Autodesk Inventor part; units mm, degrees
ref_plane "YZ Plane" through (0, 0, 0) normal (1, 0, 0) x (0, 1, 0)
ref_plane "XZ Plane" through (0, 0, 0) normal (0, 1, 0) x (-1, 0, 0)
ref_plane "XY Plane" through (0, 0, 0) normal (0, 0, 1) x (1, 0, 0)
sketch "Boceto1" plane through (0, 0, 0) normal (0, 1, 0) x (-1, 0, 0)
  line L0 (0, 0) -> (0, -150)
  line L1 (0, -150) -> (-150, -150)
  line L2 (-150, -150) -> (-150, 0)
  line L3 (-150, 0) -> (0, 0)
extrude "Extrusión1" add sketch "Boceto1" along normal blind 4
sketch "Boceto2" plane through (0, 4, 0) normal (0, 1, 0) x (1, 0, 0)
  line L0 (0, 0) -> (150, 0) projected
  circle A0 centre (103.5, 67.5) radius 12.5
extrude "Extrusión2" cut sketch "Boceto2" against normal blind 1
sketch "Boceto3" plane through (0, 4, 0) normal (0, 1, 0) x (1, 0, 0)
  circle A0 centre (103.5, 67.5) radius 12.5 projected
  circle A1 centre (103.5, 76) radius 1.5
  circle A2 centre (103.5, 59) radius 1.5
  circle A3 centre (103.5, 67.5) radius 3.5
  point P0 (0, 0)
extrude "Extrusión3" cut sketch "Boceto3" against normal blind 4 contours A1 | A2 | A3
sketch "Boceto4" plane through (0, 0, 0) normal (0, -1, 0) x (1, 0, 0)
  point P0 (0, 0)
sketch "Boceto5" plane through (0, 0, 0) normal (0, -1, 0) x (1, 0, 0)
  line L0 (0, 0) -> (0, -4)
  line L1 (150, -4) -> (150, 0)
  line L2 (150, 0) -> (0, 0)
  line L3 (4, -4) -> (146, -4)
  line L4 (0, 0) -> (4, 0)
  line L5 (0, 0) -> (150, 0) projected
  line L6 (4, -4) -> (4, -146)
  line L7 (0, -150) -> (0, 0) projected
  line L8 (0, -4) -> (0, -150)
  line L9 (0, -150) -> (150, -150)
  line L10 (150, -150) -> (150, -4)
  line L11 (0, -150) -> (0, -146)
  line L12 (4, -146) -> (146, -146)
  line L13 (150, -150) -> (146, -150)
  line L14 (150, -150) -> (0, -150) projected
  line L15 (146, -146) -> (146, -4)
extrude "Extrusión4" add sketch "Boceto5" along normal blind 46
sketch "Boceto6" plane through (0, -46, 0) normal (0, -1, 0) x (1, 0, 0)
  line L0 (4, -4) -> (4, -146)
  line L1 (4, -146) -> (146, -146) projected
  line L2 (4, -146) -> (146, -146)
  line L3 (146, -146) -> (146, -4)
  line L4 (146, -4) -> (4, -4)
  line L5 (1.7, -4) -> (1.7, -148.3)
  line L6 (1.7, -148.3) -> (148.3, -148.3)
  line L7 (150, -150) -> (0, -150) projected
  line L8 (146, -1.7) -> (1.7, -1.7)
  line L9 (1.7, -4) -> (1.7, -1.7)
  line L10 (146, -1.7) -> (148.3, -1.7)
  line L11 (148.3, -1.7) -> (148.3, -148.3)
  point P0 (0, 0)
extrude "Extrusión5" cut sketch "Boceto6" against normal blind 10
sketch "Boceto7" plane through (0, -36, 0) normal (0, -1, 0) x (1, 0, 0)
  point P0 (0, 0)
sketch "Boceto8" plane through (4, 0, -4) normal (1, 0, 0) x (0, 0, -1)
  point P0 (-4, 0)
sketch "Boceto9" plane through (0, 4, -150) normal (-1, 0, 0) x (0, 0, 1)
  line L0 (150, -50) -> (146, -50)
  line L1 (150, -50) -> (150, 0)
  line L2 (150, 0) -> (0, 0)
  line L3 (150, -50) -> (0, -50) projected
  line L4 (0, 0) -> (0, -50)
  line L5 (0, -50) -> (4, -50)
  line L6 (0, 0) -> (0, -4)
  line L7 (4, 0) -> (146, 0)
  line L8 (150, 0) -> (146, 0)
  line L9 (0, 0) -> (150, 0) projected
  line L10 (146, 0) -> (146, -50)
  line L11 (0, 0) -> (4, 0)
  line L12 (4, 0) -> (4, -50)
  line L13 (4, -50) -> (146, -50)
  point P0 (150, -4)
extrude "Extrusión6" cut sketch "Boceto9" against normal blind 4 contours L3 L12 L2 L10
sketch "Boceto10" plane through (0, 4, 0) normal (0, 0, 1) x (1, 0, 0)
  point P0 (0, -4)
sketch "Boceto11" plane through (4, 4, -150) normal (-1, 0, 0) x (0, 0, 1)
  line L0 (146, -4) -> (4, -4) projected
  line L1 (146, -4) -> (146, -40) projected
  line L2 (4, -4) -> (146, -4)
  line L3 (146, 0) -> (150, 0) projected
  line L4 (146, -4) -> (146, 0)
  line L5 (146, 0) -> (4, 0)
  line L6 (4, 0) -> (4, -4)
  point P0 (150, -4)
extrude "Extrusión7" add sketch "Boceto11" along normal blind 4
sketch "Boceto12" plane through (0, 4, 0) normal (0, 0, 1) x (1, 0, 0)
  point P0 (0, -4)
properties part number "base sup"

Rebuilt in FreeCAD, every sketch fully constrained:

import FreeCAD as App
import Part
import Sketcher

V = App.Vector

doc = App.newDocument("Part")
body = doc.addObject("PartDesign::Body", "Body")

sketch1 = body.newObject("Sketcher::SketchObject", "Sketch")
sketch1.AttachmentSupport = (doc.getObject("XZ_Plane"), [""])
sketch1.MapMode = "FlatFace"
sketch1.addGeometry([
    Part.LineSegment(V(0, -150, 0), V(0, 0, 0)),
    Part.LineSegment(V(0, 0, 0), V(150, 0, 0)),
    Part.LineSegment(V(150, 0, 0), V(150, -150, 0)),
    Part.LineSegment(V(150, -150, 0), V(0, -150, 0)),
], False)
sketch1.addConstraint([
    Sketcher.Constraint("Coincident", 0, 2, 1, 1),
    Sketcher.Constraint("Coincident", 1, 2, 2, 1),
    Sketcher.Constraint("Coincident", 2, 2, 3, 1),
    Sketcher.Constraint("Coincident", 3, 2, 0, 1),
    Sketcher.Constraint("Vertical", 0),
    Sketcher.Constraint("Horizontal", 1),
    Sketcher.Constraint("Vertical", 2),
    Sketcher.Constraint("Horizontal", 3),
    Sketcher.Constraint("Coincident", 0, 2, -1, 1),
    Sketcher.Constraint("Equal", 3, 0),
    Sketcher.Constraint("DistanceX", 1, 1, 1, 2, 150.0),
])
pad1 = body.newObject("PartDesign::Pad", "Pad")
pad1.Profile = sketch1
pad1.Length = 4
pad1.Reversed = True

sketch2 = body.newObject("Sketcher::SketchObject", "Sketch001")
sketch2.AttachmentSupport = (doc.getObject("XZ_Plane"), [""])
sketch2.MapMode = "FlatFace"
sketch2.AttachmentOffset = App.Placement(V(0, 0, -4), App.Rotation())
sketch2.addGeometry(Part.Circle(V(104, -68, 0), V(0, 0, 1), 12), False)
sketch2.addConstraint([
    Sketcher.Constraint("Diameter", 0, 25.0),
    Sketcher.Constraint("DistanceX", -1, 1, 0, 3, 103.5),
    Sketcher.Constraint("DistanceY", 0, 3, -1, 1, 67.5),
])
pocket1 = body.newObject("PartDesign::Pocket", "Pocket")
pocket1.Profile = sketch2
pocket1.Length = 1
pocket1.Reversed = True

sketch3 = body.newObject("Sketcher::SketchObject", "Sketch002")
sketch3.AttachmentSupport = (doc.getObject("XZ_Plane"), [""])
sketch3.MapMode = "FlatFace"
sketch3.AttachmentOffset = App.Placement(V(0, 0, -4), App.Rotation())
sketch3.addGeometry([
    Part.Circle(V(103.5, -76, 0), V(0, 0, 1), 1.5),
    Part.Circle(V(103.5, -59, 0), V(0, 0, 1), 1.5),
    Part.Circle(V(103.5, -67.5, 0), V(0, 0, 1), 3.5),
], False)
sketch3.addConstraint([
    Sketcher.Constraint("Equal", 0, 1),
    Sketcher.Constraint("Vertical", 0, 3, 1, 3),
    Sketcher.Constraint("Vertical", 1, 3, 2, 3),
    Sketcher.Constraint("Diameter", 0, 3.0),
    Sketcher.Constraint("Diameter", 2, 7.0),
    Sketcher.Constraint("DistanceY", 0, 3, -1, 1, 76.0),
    Sketcher.Constraint("DistanceY", 1, 3, -1, 1, 59.0),
    Sketcher.Constraint("DistanceX", -1, 1, 0, 3, 103.5),
    Sketcher.Constraint("DistanceY", 2, 3, -1, 1, 67.5),
])
pocket2 = body.newObject("PartDesign::Pocket", "Pocket001")
pocket2.Profile = sketch3
pocket2.Length = 4
pocket2.Reversed = True

sketch4 = body.newObject("Sketcher::SketchObject", "Sketch003")
sketch4.AttachmentSupport = (doc.getObject("XZ_Plane"), [""])
sketch4.MapMode = "FlatFace"
sketch4.addGeometry([
    Part.LineSegment(V(150, 0, 0), V(0, 0, 0)),
    Part.LineSegment(V(0, 0, 0), V(0, -150, 0)),
    Part.LineSegment(V(0, -150, 0), V(150, -150, 0)),
    Part.LineSegment(V(150, -150, 0), V(150, 0, 0)),
    Part.LineSegment(V(4, -146, 0), V(4, -4, 0)),
    Part.LineSegment(V(4, -4, 0), V(146, -4, 0)),
    Part.LineSegment(V(146, -4, 0), V(146, -146, 0)),
    Part.LineSegment(V(146, -146, 0), V(4, -146, 0)),
], False)
sketch4.addConstraint([
    Sketcher.Constraint("Coincident", 0, 2, 1, 1),
    Sketcher.Constraint("Coincident", 1, 2, 2, 1),
    Sketcher.Constraint("Coincident", 2, 2, 3, 1),
    Sketcher.Constraint("Coincident", 3, 2, 0, 1),
    Sketcher.Constraint("Coincident", 4, 2, 5, 1),
    Sketcher.Constraint("Coincident", 5, 2, 6, 1),
    Sketcher.Constraint("Coincident", 6, 2, 7, 1),
    Sketcher.Constraint("Coincident", 7, 2, 4, 1),
    Sketcher.Constraint("Horizontal", 0),
    Sketcher.Constraint("Vertical", 1),
    Sketcher.Constraint("Horizontal", 2),
    Sketcher.Constraint("Vertical", 3),
    Sketcher.Constraint("Vertical", 4),
    Sketcher.Constraint("Horizontal", 5),
    Sketcher.Constraint("Vertical", 6),
    Sketcher.Constraint("Horizontal", 7),
    Sketcher.Constraint("Coincident", 0, 2, -1, 1),
    Sketcher.Constraint("Equal", 2, 1),
    Sketcher.Constraint("Equal", 7, 4),
    Sketcher.Constraint("DistanceX", 0, 2, 0, 1, 150.0),
    Sketcher.Constraint("DistanceX", 5, 1, 5, 2, 142.0),
    Sketcher.Constraint("DistanceX", -1, 1, 4, 2, 4.0),
    Sketcher.Constraint("DistanceY", 4, 2, -1, 1, 4.0),
])
pad2 = body.newObject("PartDesign::Pad", "Pad001")
pad2.Profile = sketch4
pad2.Length = 46

sketch5 = body.newObject("Sketcher::SketchObject", "Sketch004")
sketch5.AttachmentSupport = (doc.getObject("XZ_Plane"), [""])
sketch5.MapMode = "FlatFace"
sketch5.AttachmentOffset = App.Placement(V(0, 0, 46), App.Rotation())
sketch5.addGeometry([
    Part.LineSegment(V(2, -2, 0), V(2, -148, 0)),
    Part.LineSegment(V(2, -148, 0), V(148, -148, 0)),
    Part.LineSegment(V(148, -148, 0), V(148, -2, 0)),
    Part.LineSegment(V(148, -2, 0), V(2, -2, 0)),
    Part.LineSegment(V(4, -146, 0), V(4, -4, 0)),
    Part.LineSegment(V(4, -4, 0), V(146, -4, 0)),
    Part.LineSegment(V(146, -4, 0), V(146, -146, 0)),
    Part.LineSegment(V(146, -146, 0), V(4, -146, 0)),
], False)
sketch5.addConstraint([
    Sketcher.Constraint("Coincident", 0, 2, 1, 1),
    Sketcher.Constraint("Coincident", 1, 2, 2, 1),
    Sketcher.Constraint("Coincident", 2, 2, 3, 1),
    Sketcher.Constraint("Coincident", 3, 2, 0, 1),
    Sketcher.Constraint("Coincident", 4, 2, 5, 1),
    Sketcher.Constraint("Coincident", 5, 2, 6, 1),
    Sketcher.Constraint("Coincident", 6, 2, 7, 1),
    Sketcher.Constraint("Coincident", 7, 2, 4, 1),
    Sketcher.Constraint("Vertical", 0),
    Sketcher.Constraint("Horizontal", 1),
    Sketcher.Constraint("Vertical", 2),
    Sketcher.Constraint("Horizontal", 3),
    Sketcher.Constraint("Vertical", 4),
    Sketcher.Constraint("Horizontal", 5),
    Sketcher.Constraint("Vertical", 6),
    Sketcher.Constraint("Horizontal", 7),
    Sketcher.Constraint("Equal", 3, 0),
    Sketcher.Constraint("Equal", 7, 4),
    Sketcher.Constraint("DistanceX", 5, 1, 5, 2, 142.0),
    Sketcher.Constraint("DistanceX", 1, 1, 1, 2, 146.6),
    Sketcher.Constraint("DistanceX", -1, 1, 4, 2, 4.0),
    Sketcher.Constraint("DistanceY", 4, 2, -1, 1, 4.0),
    Sketcher.Constraint("DistanceX", -1, 1, 0, 2, 1.7),
    Sketcher.Constraint("DistanceY", 0, 2, -1, 1, 148.3),
])
pocket3 = body.newObject("PartDesign::Pocket", "Pocket002")
pocket3.Profile = sketch5
pocket3.Length = 10

sketch6 = body.newObject("Sketcher::SketchObject", "Sketch005")
sketch6.AttachmentSupport = (doc.getObject("YZ_Plane"), [""])
sketch6.MapMode = "FlatFace"
sketch6.addGeometry([
    Part.LineSegment(V(-46, -146, 0), V(-46, -4, 0)),
    Part.LineSegment(V(-46, -4, 0), V(4, -4, 0)),
    Part.LineSegment(V(4, -4, 0), V(4, -146, 0)),
    Part.LineSegment(V(4, -146, 0), V(-46, -146, 0)),
], False)
sketch6.addConstraint([
    Sketcher.Constraint("Coincident", 0, 2, 1, 1),
    Sketcher.Constraint("Coincident", 1, 2, 2, 1),
    Sketcher.Constraint("Coincident", 2, 2, 3, 1),
    Sketcher.Constraint("Coincident", 3, 2, 0, 1),
    Sketcher.Constraint("Vertical", 0),
    Sketcher.Constraint("Horizontal", 1),
    Sketcher.Constraint("Vertical", 2),
    Sketcher.Constraint("Horizontal", 3),
    Sketcher.Constraint("DistanceX", 1, 1, 1, 2, 50.0),
    Sketcher.Constraint("DistanceY", 0, 1, 0, 2, 142.0),
    Sketcher.Constraint("DistanceX", 0, 2, -1, 1, 46.0),
    Sketcher.Constraint("DistanceY", 0, 2, -1, 1, 4.0),
])
pocket4 = body.newObject("PartDesign::Pocket", "Pocket003")
pocket4.Profile = sketch6
pocket4.Length = 4
pocket4.Reversed = True

sketch7 = body.newObject("Sketcher::SketchObject", "Sketch006")
sketch7.AttachmentSupport = (doc.getObject("YZ_Plane"), [""])
sketch7.MapMode = "FlatFace"
sketch7.AttachmentOffset = App.Placement(V(0, 0, 4), App.Rotation())
sketch7.addGeometry([
    Part.LineSegment(V(0, -146, 0), V(0, -4, 0)),
    Part.LineSegment(V(0, -4, 0), V(4, -4, 0)),
    Part.LineSegment(V(4, -4, 0), V(4, -146, 0)),
    Part.LineSegment(V(4, -146, 0), V(0, -146, 0)),
], False)
sketch7.addConstraint([
    Sketcher.Constraint("Coincident", 0, 2, 1, 1),
    Sketcher.Constraint("Coincident", 1, 2, 2, 1),
    Sketcher.Constraint("Coincident", 2, 2, 3, 1),
    Sketcher.Constraint("Coincident", 3, 2, 0, 1),
    Sketcher.Constraint("Vertical", 0),
    Sketcher.Constraint("Horizontal", 1),
    Sketcher.Constraint("Vertical", 2),
    Sketcher.Constraint("Horizontal", 3),
    Sketcher.Constraint("PointOnObject", 0, 2, -2),
    Sketcher.Constraint("DistanceX", 1, 1, 1, 2, 4.0),
    Sketcher.Constraint("DistanceY", 0, 1, 0, 2, 142.0),
    Sketcher.Constraint("DistanceY", 0, 2, -1, 1, 4.0),
])
pad3 = body.newObject("PartDesign::Pad", "Pad002")
pad3.Profile = sketch7
pad3.Length = 4
pad3.Reversed = True

doc.recompute()
